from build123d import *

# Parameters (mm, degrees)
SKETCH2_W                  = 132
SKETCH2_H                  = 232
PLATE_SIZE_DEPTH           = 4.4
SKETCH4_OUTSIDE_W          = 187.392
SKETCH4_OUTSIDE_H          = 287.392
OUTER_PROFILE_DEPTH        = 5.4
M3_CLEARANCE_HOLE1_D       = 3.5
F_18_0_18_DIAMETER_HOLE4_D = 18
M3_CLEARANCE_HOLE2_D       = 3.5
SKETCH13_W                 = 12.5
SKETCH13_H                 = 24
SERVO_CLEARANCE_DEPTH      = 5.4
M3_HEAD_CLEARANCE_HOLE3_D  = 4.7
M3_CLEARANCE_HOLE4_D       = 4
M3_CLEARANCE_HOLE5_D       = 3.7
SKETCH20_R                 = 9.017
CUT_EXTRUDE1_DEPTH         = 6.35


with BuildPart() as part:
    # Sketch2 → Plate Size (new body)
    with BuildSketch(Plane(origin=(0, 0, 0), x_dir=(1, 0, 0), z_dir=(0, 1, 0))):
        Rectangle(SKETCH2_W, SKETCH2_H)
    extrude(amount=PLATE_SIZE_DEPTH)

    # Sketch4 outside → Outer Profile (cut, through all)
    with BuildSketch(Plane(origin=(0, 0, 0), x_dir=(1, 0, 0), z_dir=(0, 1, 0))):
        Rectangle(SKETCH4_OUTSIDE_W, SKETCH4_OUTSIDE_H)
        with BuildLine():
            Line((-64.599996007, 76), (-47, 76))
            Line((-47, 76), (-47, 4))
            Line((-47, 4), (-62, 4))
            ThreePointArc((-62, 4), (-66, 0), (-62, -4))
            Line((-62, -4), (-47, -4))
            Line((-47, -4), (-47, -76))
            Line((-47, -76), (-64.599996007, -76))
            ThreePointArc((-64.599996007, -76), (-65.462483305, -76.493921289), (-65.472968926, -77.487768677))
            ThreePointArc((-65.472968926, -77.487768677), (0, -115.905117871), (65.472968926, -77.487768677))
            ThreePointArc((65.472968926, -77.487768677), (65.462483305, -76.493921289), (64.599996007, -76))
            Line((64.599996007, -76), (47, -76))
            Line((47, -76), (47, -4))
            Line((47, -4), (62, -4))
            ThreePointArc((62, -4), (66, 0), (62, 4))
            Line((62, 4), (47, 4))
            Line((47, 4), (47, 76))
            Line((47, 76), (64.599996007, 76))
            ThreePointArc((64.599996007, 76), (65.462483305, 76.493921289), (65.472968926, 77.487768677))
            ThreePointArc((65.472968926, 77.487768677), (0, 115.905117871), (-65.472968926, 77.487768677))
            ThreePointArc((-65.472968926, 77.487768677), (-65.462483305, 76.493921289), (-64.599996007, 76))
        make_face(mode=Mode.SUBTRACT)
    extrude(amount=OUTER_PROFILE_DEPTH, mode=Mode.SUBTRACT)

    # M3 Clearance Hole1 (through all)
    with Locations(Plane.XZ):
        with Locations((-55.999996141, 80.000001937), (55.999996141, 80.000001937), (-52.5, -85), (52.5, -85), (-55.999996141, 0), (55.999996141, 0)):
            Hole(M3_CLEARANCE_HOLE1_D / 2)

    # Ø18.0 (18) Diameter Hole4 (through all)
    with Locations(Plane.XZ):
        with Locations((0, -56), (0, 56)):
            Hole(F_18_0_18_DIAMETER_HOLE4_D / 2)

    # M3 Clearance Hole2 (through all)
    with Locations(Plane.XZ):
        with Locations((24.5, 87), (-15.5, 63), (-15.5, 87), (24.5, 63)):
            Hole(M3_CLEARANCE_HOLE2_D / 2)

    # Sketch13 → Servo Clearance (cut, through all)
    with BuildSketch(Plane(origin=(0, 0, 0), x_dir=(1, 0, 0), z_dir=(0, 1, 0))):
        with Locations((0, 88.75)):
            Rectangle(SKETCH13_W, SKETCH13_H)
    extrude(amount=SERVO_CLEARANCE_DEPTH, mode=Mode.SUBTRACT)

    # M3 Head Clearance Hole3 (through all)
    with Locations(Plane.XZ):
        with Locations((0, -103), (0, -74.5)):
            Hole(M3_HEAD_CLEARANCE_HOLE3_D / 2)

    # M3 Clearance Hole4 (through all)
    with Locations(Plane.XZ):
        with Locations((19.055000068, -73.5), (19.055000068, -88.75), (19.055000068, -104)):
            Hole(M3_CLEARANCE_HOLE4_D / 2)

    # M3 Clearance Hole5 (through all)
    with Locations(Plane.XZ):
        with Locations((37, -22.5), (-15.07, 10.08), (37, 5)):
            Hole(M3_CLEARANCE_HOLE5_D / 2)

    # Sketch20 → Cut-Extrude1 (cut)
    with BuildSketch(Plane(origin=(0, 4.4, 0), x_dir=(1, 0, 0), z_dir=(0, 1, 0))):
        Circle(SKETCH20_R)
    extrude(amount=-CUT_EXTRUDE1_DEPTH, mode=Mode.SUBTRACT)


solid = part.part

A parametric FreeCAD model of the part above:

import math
import FreeCAD as App
import Part
import Sketcher

V = App.Vector
Q = App.Units.Quantity


def add_polygon(sketch, points):
    """Adds a closed chain of lines whose ends are joined by coincident constraints."""
    first, n = sketch.GeometryCount, len(points)
    for a, b in zip(points, points[1:] + points[:1]):
        sketch.addGeometry(Part.LineSegment(App.Vector(*a, 0), App.Vector(*b, 0)), False)
    for i in range(n):
        sketch.addConstraint(Sketcher.Constraint("Coincident", first + i, 2, first + (i + 1) % n, 1))

doc = App.newDocument("Part")
body = doc.addObject("PartDesign::Body", "Body")

# Sketch on XZ plane
sketch1 = doc.addObject("Sketcher::SketchObject", "Sketch")
body.addObject(sketch1)
sketch1.AttachmentSupport = (doc.XZ_Plane, [""])
sketch1.MapMode = "FlatFace"
add_polygon(sketch1, [(-66, -116), (-66, 116), (66, 116), (66, -116)])  # lines 0-3
sketch1.addConstraint([
    Sketcher.Constraint("Vertical", 0),
    Sketcher.Constraint("Horizontal", 1),
    Sketcher.Constraint("Vertical", 2),
    Sketcher.Constraint("Horizontal", 3),
    Sketcher.Constraint("Symmetric", 0, 2, 2, 2, -1, 1),
    Sketcher.Constraint("DistanceX", 1, 1, 1, 2, Q("132 mm")),
    Sketcher.Constraint("DistanceY", 0, 1, 0, 2, Q("232 mm")),
])
pad1 = doc.addObject("PartDesign::Pad", "Pad")
body.addObject(pad1)
pad1.Profile = sketch1
pad1.Length = 4.4
pad1.Reversed = True

# Sketch on XZ plane
sketch2 = doc.addObject("Sketcher::SketchObject", "Sketch001")
body.addObject(sketch2)
sketch2.AttachmentSupport = (doc.XZ_Plane, [""])
sketch2.MapMode = "FlatFace"
add_polygon(sketch2, [(-93.7, -143.7), (-93.7, 143.7), (93.7, 143.7), (93.7, -143.7)])  # lines 0-3
sketch2.addGeometry(Part.LineSegment(V(-47, -76, 0), V(-64.6, -76, 0)), False)  # 4
sketch2.addGeometry(Part.ArcOfCircle(Part.Circle(V(-64.6, -77, 0), V(0, 0, 1), 1), math.radians(90), math.radians(209)), False)  # 5
sketch2.addGeometry(Part.ArcOfCircle(Part.Circle(V(0, -40.9, 0), V(0, 0, 1), 75), math.radians(-151), math.radians(-29)), False)  # 6
sketch2.addGeometry(Part.ArcOfCircle(Part.Circle(V(64.6, -77, 0), V(0, 0, 1), 1), math.radians(-29), math.radians(90)), False)  # 7
sketch2.addGeometry(Part.LineSegment(V(64.6, -76, 0), V(47, -76, 0)), False)  # 8
sketch2.addGeometry(Part.LineSegment(V(47, -76, 0), V(47, -4, 0)), False)  # 9
sketch2.addGeometry(Part.LineSegment(V(47, -4, 0), V(62, -4, 0)), False)  # 10
sketch2.addGeometry(Part.ArcOfCircle(Part.Circle(V(62, 0, 0), V(0, 0, 1), 4), math.radians(-90), math.radians(90)), False)  # 11
sketch2.addGeometry(Part.LineSegment(V(62, 4, 0), V(47, 4, 0)), False)  # 12
sketch2.addGeometry(Part.LineSegment(V(47, 4, 0), V(47, 76, 0)), False)  # 13
sketch2.addGeometry(Part.LineSegment(V(47, 76, 0), V(64.6, 76, 0)), False)  # 14
sketch2.addGeometry(Part.ArcOfCircle(Part.Circle(V(64.6, 77, 0), V(0, 0, 1), 1), math.radians(-90), math.radians(29)), False)  # 15
sketch2.addGeometry(Part.ArcOfCircle(Part.Circle(V(0, 40.9, 0), V(0, 0, 1), 75), math.radians(29), math.radians(151)), False)  # 16
sketch2.addGeometry(Part.ArcOfCircle(Part.Circle(V(-64.6, 77, 0), V(0, 0, 1), 1), math.radians(151), math.radians(270)), False)  # 17
sketch2.addGeometry(Part.LineSegment(V(-64.6, 76, 0), V(-47, 76, 0)), False)  # 18
sketch2.addGeometry(Part.LineSegment(V(-47, 76, 0), V(-47, 4, 0)), False)  # 19
sketch2.addGeometry(Part.LineSegment(V(-47, 4, 0), V(-62, 4, 0)), False)  # 20
sketch2.addGeometry(Part.ArcOfCircle(Part.Circle(V(-62, 0, 0), V(0, 0, 1), 4), math.radians(90), math.radians(270)), False)  # 21
sketch2.addGeometry(Part.LineSegment(V(-62, -4, 0), V(-47, -4, 0)), False)  # 22
sketch2.addGeometry(Part.LineSegment(V(-47, -4, 0), V(-47, -76, 0)), False)  # 23
sketch2.addConstraint([
    Sketcher.Constraint("Tangent", 4, 2, 5, 1),
    Sketcher.Constraint("Tangent", 5, 2, 6, 1),
    Sketcher.Constraint("Tangent", 6, 2, 7, 1),
    Sketcher.Constraint("Tangent", 7, 2, 8, 1),
    Sketcher.Constraint("Coincident", 8, 2, 9, 1),
    Sketcher.Constraint("Coincident", 9, 2, 10, 1),
    Sketcher.Constraint("Tangent", 10, 2, 11, 1),
    Sketcher.Constraint("Tangent", 11, 2, 12, 1),
    Sketcher.Constraint("Coincident", 12, 2, 13, 1),
    Sketcher.Constraint("Coincident", 13, 2, 14, 1),
    Sketcher.Constraint("Tangent", 14, 2, 15, 1),
    Sketcher.Constraint("Tangent", 15, 2, 16, 1),
    Sketcher.Constraint("Tangent", 16, 2, 17, 1),
    Sketcher.Constraint("Tangent", 17, 2, 18, 1),
    Sketcher.Constraint("Coincident", 18, 2, 19, 1),
    Sketcher.Constraint("Coincident", 19, 2, 20, 1),
    Sketcher.Constraint("Tangent", 20, 2, 21, 1),
    Sketcher.Constraint("Tangent", 21, 2, 22, 1),
    Sketcher.Constraint("Coincident", 22, 2, 23, 1),
    Sketcher.Constraint("Coincident", 23, 2, 4, 1),
    Sketcher.Constraint("Vertical", 0),
    Sketcher.Constraint("Horizontal", 1),
    Sketcher.Constraint("Vertical", 2),
    Sketcher.Constraint("Horizontal", 3),
    Sketcher.Constraint("Horizontal", 4),
    Sketcher.Constraint("Horizontal", 8),
    Sketcher.Constraint("Vertical", 9),
    Sketcher.Constraint("Horizontal", 10),
    Sketcher.Constraint("Horizontal", 12),
    Sketcher.Constraint("Vertical", 13),
    Sketcher.Constraint("Horizontal", 14),
    Sketcher.Constraint("Horizontal", 18),
    Sketcher.Constraint("Vertical", 19),
    Sketcher.Constraint("Horizontal", 20),
    Sketcher.Constraint("Horizontal", 22),
    Sketcher.Constraint("Vertical", 23),
    Sketcher.Constraint("Equal", 5, 7),
    Sketcher.Constraint("Equal", 7, 15),
    Sketcher.Constraint("Equal", 6, 16),
    Sketcher.Constraint("Equal", 15, 17),
    Sketcher.Constraint("Equal", 11, 21),
    Sketcher.Constraint("Symmetric", 5, 3, 15, 3, -1, 1),
    Sketcher.Constraint("Symmetric", 7, 3, 17, 3, -1, 1),
    Sketcher.Constraint("Symmetric", 11, 3, 21, 3, -1, 1),
    Sketcher.Constraint("Symmetric", 0, 2, 2, 2, -1, 1),
    Sketcher.Constraint("Symmetric", 5, 3, 7, 3, -2),
    Sketcher.Constraint("Symmetric", 12, 2, 19, 2, -2),
    Sketcher.Constraint("Vertical", 9, 2, 12, 2),
    Sketcher.Constraint("Vertical", 19, 2, 22, 2),
    Sketcher.Constraint("Radius", 5, Q("1 mm")),
    Sketcher.Constraint("Radius", 6, Q("75 mm")),
    Sketcher.Constraint("Radius", 11, Q("4 mm")),
    Sketcher.Constraint("DistanceX", 10, 1, 10, 2, Q("15 mm")),
    Sketcher.Constraint("DistanceY", 9, 1, 9, 2, Q("72 mm")),
    Sketcher.Constraint("DistanceX", -1, 1, 11, 3, Q("62 mm")),
    Sketcher.Constraint("DistanceX", 1, 1, 1, 2, Q("187.392 mm")),
    Sketcher.Constraint("DistanceY", 0, 1, 0, 2, Q("287.392 mm")),
    Sketcher.Constraint("DistanceX", 4, 2, 4, 1, Q("17.599996 mm")),
])
pocket1 = doc.addObject("PartDesign::Pocket", "Pocket")
body.addObject(pocket1)
pocket1.Profile = sketch2
pocket1.Type = "ThroughAll"

# Sketch on XZ plane
sketch3 = doc.addObject("Sketcher::SketchObject", "Sketch002")
body.addObject(sketch3)
sketch3.AttachmentSupport = (doc.XZ_Plane, [""])
sketch3.MapMode = "FlatFace"
sketch3.addGeometry([
    Part.Circle(V(-56, 80, 0), V(0, 0, 1), 1.8),  # 0
    Part.Circle(V(56, 80, 0), V(0, 0, 1), 1.8),  # 1
    Part.Circle(V(-52.5, -85, 0), V(0, 0, 1), 1.8),  # 2
    Part.Circle(V(52.5, -85, 0), V(0, 0, 1), 1.8),  # 3
    Part.Circle(V(-56, 0, 0), V(0, 0, 1), 1.8),  # 4
    Part.Circle(V(56, 0, 0), V(0, 0, 1), 1.8),  # 5
], False)
sketch3.addConstraint([
    Sketcher.Constraint("Equal", 0, 1),
    Sketcher.Constraint("Equal", 1, 2),
    Sketcher.Constraint("Equal", 2, 3),
    Sketcher.Constraint("Equal", 3, 4),
    Sketcher.Constraint("Equal", 4, 5),
    Sketcher.Constraint("Symmetric", 4, 3, 5, 3, -1, 1),
    Sketcher.Constraint("Symmetric", 0, 3, 1, 3, -2),
    Sketcher.Constraint("Symmetric", 2, 3, 3, 3, -2),
    Sketcher.Constraint("PointOnObject", 4, 3, -1),
    Sketcher.Constraint("Vertical", 0, 3, 4, 3),
    Sketcher.Constraint("Diameter", 0, Q("3.5 mm")),
    Sketcher.Constraint("DistanceY", -1, 1, 0, 3, Q("80.000002 mm")),
    Sketcher.Constraint("DistanceY", 2, 3, -1, 1, Q("85 mm")),
    Sketcher.Constraint("DistanceX", 2, 3, 3, 3, Q("105 mm")),
    Sketcher.Constraint("DistanceX", 0, 3, -1, 1, Q("55.999996 mm")),
])
doc.recompute()
hole = doc.addObject("PartDesign::Hole", "Hole")
body.addObject(hole)
hole.Profile = sketch3
hole.ThreadType = "None"
hole.Diameter = 3.5
hole.DepthType = "ThroughAll"

# Sketch on XZ plane
sketch4 = doc.addObject("Sketcher::SketchObject", "Sketch003")
body.addObject(sketch4)
sketch4.AttachmentSupport = (doc.XZ_Plane, [""])
sketch4.MapMode = "FlatFace"
sketch4.addGeometry([
    Part.Circle(V(0, -56, 0), V(0, 0, 1), 9),
    Part.Circle(V(0, 56, 0), V(0, 0, 1), 9),
], False)
sketch4.addConstraint([
    Sketcher.Constraint("Equal", 0, 1),
    Sketcher.Constraint("Symmetric", 0, 3, 1, 3, -1, 1),
    Sketcher.Constraint("PointOnObject", 0, 3, -2),
    Sketcher.Constraint("Diameter", 0, Q("18 mm")),
    Sketcher.Constraint("DistanceY", 0, 3, -1, 1, Q("56 mm")),
])
doc.recompute()
hole2 = doc.addObject("PartDesign::Hole", "Hole001")
body.addObject(hole2)
hole2.Profile = sketch4
hole2.ThreadType = "None"
hole2.Diameter = 18
hole2.DepthType = "ThroughAll"

# Sketch on XZ plane
sketch5 = doc.addObject("Sketcher::SketchObject", "Sketch004")
body.addObject(sketch5)
sketch5.AttachmentSupport = (doc.XZ_Plane, [""])
sketch5.MapMode = "FlatFace"
sketch5.addGeometry([
    Part.Circle(V(24.5, 87, 0), V(0, 0, 1), 1.8),
    Part.Circle(V(-15.5, 63, 0), V(0, 0, 1), 1.8),
    Part.Circle(V(-15.5, 87, 0), V(0, 0, 1), 1.8),
    Part.Circle(V(24.5, 63, 0), V(0, 0, 1), 1.8),
], False)
sketch5.addConstraint([
    Sketcher.Constraint("Equal", 0, 1),
    Sketcher.Constraint("Equal", 1, 2),
    Sketcher.Constraint("Equal", 2, 3),
    Sketcher.Constraint("Horizontal", 0, 3, 2, 3),
    Sketcher.Constraint("Horizontal", 1, 3, 3, 3),
    Sketcher.Constraint("Vertical", 1, 3, 2, 3),
    Sketcher.Constraint("Vertical", 0, 3, 3, 3),
    Sketcher.Constraint("Diameter", 0, Q("3.5 mm")),
    Sketcher.Constraint("DistanceY", -1, 1, 0, 3, Q("87 mm")),
    Sketcher.Constraint("DistanceY", -1, 1, 1, 3, Q("63 mm")),
    Sketcher.Constraint("DistanceX", 1, 3, 0, 3, Q("40 mm")),
    Sketcher.Constraint("DistanceX", -1, 1, 0, 3, Q("24.5 mm")),
])
doc.recompute()
hole3 = doc.addObject("PartDesign::Hole", "Hole002")
body.addObject(hole3)
hole3.Profile = sketch5
hole3.ThreadType = "None"
hole3.Diameter = 3.5
hole3.DepthType = "ThroughAll"

# Sketch on XZ plane
sketch6 = doc.addObject("Sketcher::SketchObject", "Sketch005")
body.addObject(sketch6)
sketch6.AttachmentSupport = (doc.XZ_Plane, [""])
sketch6.MapMode = "FlatFace"
add_polygon(sketch6, [(-6, -101), (-6, -77), (6, -77), (6, -101)])  # lines 0-3
sketch6.addConstraint([
    Sketcher.Constraint("Vertical", 0),
    Sketcher.Constraint("Horizontal", 1),
    Sketcher.Constraint("Vertical", 2),
    Sketcher.Constraint("Horizontal", 3),
    Sketcher.Constraint("DistanceY", 0, 1, 0, 2, Q("24 mm")),
    Sketcher.Constraint("DistanceX", 1, 1, 1, 2, Q("12.5 mm")),
    Sketcher.Constraint("DistanceX", 0, 2, -1, 1, Q("6.25 mm")),
    Sketcher.Constraint("DistanceY", 0, 2, -1, 1, Q("76.75 mm")),
])
pocket2 = doc.addObject("PartDesign::Pocket", "Pocket001")
body.addObject(pocket2)
pocket2.Profile = sketch6
pocket2.Type = "ThroughAll"

# Sketch on XZ plane
sketch7 = doc.addObject("Sketcher::SketchObject", "Sketch006")
body.addObject(sketch7)
sketch7.AttachmentSupport = (doc.XZ_Plane, [""])
sketch7.MapMode = "FlatFace"
sketch7.addGeometry([
    Part.Circle(V(0, -103, 0), V(0, 0, 1), 2.4),
    Part.Circle(V(0, -74.5, 0), V(0, 0, 1), 2.4),
], False)
sketch7.addConstraint([
    Sketcher.Constraint("Equal", 0, 1),
    Sketcher.Constraint("PointOnObject", 0, 3, -2),
    Sketcher.Constraint("PointOnObject", 1, 3, -2),
    Sketcher.Constraint("Diameter", 0, Q("4.7 mm")),
    Sketcher.Constraint("DistanceY", 0, 3, -1, 1, Q("103 mm")),
    Sketcher.Constraint("DistanceY", 1, 3, -1, 1, Q("74.5 mm")),
])
doc.recompute()
hole4 = doc.addObject("PartDesign::Hole", "Hole003")
body.addObject(hole4)
hole4.Profile = sketch7
hole4.ThreadType = "None"
hole4.Diameter = 4.7
hole4.DepthType = "ThroughAll"

# Sketch on XZ plane
sketch8 = doc.addObject("Sketcher::SketchObject", "Sketch007")
body.addObject(sketch8)
sketch8.AttachmentSupport = (doc.XZ_Plane, [""])
sketch8.MapMode = "FlatFace"
sketch8.addGeometry([
    Part.Circle(V(19.1, -73.5, 0), V(0, 0, 1), 2),
    Part.Circle(V(19.1, -88.8, 0), V(0, 0, 1), 2),
    Part.Circle(V(19.1, -104, 0), V(0, 0, 1), 2),
], False)
sketch8.addConstraint([
    Sketcher.Constraint("Equal", 0, 1),
    Sketcher.Constraint("Equal", 1, 2),
    Sketcher.Constraint("Vertical", 0, 3, 1, 3),
    Sketcher.Constraint("Vertical", 1, 3, 2, 3),
    Sketcher.Constraint("Diameter", 0, Q("4 mm")),
    Sketcher.Constraint("DistanceY", 2, 3, -1, 1, Q("104 mm")),
    Sketcher.Constraint("DistanceY", 0, 3, -1, 1, Q("73.5 mm")),
    Sketcher.Constraint("DistanceY", 1, 3, -1, 1, Q("88.75 mm")),
    Sketcher.Constraint("DistanceX", -1, 1, 0, 3, Q("19.055 mm")),
])
doc.recompute()
hole5 = doc.addObject("PartDesign::Hole", "Hole004")
body.addObject(hole5)
hole5.Profile = sketch8
hole5.ThreadType = "None"
hole5.Diameter = 4
hole5.DepthType = "ThroughAll"

# Sketch on XZ plane
sketch9 = doc.addObject("Sketcher::SketchObject", "Sketch008")
body.addObject(sketch9)
sketch9.AttachmentSupport = (doc.XZ_Plane, [""])
sketch9.MapMode = "FlatFace"
sketch9.addGeometry([
    Part.Circle(V(37, -22.5, 0), V(0, 0, 1), 1.9),
    Part.Circle(V(-15.1, 10.1, 0), V(0, 0, 1), 1.9),
    Part.Circle(V(37, 5, 0), V(0, 0, 1), 1.9),
], False)
sketch9.addConstraint([
    Sketcher.Constraint("Equal", 0, 1),
    Sketcher.Constraint("Equal", 1, 2),
    Sketcher.Constraint("Vertical", 0, 3, 2, 3),
    Sketcher.Constraint("Diameter", 0, Q("3.7 mm")),
    Sketcher.Constraint("DistanceX", -1, 1, 0, 3, Q("37 mm")),
    Sketcher.Constraint("DistanceY", -1, 1, 2, 3, Q("5 mm")),
    Sketcher.Constraint("DistanceY", 0, 3, -1, 1, Q("22.5 mm")),
    Sketcher.Constraint("DistanceX", 1, 3, -1, 1, Q("15.07 mm")),
    Sketcher.Constraint("DistanceY", -1, 1, 1, 3, Q("10.08 mm")),
])
doc.recompute()
hole6 = doc.addObject("PartDesign::Hole", "Hole005")
body.addObject(hole6)
hole6.Profile = sketch9
hole6.ThreadType = "None"
hole6.Diameter = 3.7
hole6.DepthType = "ThroughAll"

# Sketch on XZ plane
sketch10 = doc.addObject("Sketcher::SketchObject", "Sketch009")
body.addObject(sketch10)
sketch10.AttachmentSupport = (doc.XZ_Plane, [""])
sketch10.MapMode = "FlatFace"
sketch10.AttachmentOffset = App.Placement(V(0, 0, -4.4), App.Rotation())
sketch10.addGeometry(Part.Circle(V(0, 0, 0), V(0, 0, 1), 9), False)
sketch10.addConstraint([
    Sketcher.Constraint("Coincident", 0, 3, -1, 1),
    Sketcher.Constraint("Diameter", 0, Q("18.034 mm")),
])
pocket3 = doc.addObject("PartDesign::Pocket", "Pocket002")
body.addObject(pocket3)
pocket3.Profile = sketch10
pocket3.Length = 6.35
pocket3.Reversed = True

doc.recompute()
